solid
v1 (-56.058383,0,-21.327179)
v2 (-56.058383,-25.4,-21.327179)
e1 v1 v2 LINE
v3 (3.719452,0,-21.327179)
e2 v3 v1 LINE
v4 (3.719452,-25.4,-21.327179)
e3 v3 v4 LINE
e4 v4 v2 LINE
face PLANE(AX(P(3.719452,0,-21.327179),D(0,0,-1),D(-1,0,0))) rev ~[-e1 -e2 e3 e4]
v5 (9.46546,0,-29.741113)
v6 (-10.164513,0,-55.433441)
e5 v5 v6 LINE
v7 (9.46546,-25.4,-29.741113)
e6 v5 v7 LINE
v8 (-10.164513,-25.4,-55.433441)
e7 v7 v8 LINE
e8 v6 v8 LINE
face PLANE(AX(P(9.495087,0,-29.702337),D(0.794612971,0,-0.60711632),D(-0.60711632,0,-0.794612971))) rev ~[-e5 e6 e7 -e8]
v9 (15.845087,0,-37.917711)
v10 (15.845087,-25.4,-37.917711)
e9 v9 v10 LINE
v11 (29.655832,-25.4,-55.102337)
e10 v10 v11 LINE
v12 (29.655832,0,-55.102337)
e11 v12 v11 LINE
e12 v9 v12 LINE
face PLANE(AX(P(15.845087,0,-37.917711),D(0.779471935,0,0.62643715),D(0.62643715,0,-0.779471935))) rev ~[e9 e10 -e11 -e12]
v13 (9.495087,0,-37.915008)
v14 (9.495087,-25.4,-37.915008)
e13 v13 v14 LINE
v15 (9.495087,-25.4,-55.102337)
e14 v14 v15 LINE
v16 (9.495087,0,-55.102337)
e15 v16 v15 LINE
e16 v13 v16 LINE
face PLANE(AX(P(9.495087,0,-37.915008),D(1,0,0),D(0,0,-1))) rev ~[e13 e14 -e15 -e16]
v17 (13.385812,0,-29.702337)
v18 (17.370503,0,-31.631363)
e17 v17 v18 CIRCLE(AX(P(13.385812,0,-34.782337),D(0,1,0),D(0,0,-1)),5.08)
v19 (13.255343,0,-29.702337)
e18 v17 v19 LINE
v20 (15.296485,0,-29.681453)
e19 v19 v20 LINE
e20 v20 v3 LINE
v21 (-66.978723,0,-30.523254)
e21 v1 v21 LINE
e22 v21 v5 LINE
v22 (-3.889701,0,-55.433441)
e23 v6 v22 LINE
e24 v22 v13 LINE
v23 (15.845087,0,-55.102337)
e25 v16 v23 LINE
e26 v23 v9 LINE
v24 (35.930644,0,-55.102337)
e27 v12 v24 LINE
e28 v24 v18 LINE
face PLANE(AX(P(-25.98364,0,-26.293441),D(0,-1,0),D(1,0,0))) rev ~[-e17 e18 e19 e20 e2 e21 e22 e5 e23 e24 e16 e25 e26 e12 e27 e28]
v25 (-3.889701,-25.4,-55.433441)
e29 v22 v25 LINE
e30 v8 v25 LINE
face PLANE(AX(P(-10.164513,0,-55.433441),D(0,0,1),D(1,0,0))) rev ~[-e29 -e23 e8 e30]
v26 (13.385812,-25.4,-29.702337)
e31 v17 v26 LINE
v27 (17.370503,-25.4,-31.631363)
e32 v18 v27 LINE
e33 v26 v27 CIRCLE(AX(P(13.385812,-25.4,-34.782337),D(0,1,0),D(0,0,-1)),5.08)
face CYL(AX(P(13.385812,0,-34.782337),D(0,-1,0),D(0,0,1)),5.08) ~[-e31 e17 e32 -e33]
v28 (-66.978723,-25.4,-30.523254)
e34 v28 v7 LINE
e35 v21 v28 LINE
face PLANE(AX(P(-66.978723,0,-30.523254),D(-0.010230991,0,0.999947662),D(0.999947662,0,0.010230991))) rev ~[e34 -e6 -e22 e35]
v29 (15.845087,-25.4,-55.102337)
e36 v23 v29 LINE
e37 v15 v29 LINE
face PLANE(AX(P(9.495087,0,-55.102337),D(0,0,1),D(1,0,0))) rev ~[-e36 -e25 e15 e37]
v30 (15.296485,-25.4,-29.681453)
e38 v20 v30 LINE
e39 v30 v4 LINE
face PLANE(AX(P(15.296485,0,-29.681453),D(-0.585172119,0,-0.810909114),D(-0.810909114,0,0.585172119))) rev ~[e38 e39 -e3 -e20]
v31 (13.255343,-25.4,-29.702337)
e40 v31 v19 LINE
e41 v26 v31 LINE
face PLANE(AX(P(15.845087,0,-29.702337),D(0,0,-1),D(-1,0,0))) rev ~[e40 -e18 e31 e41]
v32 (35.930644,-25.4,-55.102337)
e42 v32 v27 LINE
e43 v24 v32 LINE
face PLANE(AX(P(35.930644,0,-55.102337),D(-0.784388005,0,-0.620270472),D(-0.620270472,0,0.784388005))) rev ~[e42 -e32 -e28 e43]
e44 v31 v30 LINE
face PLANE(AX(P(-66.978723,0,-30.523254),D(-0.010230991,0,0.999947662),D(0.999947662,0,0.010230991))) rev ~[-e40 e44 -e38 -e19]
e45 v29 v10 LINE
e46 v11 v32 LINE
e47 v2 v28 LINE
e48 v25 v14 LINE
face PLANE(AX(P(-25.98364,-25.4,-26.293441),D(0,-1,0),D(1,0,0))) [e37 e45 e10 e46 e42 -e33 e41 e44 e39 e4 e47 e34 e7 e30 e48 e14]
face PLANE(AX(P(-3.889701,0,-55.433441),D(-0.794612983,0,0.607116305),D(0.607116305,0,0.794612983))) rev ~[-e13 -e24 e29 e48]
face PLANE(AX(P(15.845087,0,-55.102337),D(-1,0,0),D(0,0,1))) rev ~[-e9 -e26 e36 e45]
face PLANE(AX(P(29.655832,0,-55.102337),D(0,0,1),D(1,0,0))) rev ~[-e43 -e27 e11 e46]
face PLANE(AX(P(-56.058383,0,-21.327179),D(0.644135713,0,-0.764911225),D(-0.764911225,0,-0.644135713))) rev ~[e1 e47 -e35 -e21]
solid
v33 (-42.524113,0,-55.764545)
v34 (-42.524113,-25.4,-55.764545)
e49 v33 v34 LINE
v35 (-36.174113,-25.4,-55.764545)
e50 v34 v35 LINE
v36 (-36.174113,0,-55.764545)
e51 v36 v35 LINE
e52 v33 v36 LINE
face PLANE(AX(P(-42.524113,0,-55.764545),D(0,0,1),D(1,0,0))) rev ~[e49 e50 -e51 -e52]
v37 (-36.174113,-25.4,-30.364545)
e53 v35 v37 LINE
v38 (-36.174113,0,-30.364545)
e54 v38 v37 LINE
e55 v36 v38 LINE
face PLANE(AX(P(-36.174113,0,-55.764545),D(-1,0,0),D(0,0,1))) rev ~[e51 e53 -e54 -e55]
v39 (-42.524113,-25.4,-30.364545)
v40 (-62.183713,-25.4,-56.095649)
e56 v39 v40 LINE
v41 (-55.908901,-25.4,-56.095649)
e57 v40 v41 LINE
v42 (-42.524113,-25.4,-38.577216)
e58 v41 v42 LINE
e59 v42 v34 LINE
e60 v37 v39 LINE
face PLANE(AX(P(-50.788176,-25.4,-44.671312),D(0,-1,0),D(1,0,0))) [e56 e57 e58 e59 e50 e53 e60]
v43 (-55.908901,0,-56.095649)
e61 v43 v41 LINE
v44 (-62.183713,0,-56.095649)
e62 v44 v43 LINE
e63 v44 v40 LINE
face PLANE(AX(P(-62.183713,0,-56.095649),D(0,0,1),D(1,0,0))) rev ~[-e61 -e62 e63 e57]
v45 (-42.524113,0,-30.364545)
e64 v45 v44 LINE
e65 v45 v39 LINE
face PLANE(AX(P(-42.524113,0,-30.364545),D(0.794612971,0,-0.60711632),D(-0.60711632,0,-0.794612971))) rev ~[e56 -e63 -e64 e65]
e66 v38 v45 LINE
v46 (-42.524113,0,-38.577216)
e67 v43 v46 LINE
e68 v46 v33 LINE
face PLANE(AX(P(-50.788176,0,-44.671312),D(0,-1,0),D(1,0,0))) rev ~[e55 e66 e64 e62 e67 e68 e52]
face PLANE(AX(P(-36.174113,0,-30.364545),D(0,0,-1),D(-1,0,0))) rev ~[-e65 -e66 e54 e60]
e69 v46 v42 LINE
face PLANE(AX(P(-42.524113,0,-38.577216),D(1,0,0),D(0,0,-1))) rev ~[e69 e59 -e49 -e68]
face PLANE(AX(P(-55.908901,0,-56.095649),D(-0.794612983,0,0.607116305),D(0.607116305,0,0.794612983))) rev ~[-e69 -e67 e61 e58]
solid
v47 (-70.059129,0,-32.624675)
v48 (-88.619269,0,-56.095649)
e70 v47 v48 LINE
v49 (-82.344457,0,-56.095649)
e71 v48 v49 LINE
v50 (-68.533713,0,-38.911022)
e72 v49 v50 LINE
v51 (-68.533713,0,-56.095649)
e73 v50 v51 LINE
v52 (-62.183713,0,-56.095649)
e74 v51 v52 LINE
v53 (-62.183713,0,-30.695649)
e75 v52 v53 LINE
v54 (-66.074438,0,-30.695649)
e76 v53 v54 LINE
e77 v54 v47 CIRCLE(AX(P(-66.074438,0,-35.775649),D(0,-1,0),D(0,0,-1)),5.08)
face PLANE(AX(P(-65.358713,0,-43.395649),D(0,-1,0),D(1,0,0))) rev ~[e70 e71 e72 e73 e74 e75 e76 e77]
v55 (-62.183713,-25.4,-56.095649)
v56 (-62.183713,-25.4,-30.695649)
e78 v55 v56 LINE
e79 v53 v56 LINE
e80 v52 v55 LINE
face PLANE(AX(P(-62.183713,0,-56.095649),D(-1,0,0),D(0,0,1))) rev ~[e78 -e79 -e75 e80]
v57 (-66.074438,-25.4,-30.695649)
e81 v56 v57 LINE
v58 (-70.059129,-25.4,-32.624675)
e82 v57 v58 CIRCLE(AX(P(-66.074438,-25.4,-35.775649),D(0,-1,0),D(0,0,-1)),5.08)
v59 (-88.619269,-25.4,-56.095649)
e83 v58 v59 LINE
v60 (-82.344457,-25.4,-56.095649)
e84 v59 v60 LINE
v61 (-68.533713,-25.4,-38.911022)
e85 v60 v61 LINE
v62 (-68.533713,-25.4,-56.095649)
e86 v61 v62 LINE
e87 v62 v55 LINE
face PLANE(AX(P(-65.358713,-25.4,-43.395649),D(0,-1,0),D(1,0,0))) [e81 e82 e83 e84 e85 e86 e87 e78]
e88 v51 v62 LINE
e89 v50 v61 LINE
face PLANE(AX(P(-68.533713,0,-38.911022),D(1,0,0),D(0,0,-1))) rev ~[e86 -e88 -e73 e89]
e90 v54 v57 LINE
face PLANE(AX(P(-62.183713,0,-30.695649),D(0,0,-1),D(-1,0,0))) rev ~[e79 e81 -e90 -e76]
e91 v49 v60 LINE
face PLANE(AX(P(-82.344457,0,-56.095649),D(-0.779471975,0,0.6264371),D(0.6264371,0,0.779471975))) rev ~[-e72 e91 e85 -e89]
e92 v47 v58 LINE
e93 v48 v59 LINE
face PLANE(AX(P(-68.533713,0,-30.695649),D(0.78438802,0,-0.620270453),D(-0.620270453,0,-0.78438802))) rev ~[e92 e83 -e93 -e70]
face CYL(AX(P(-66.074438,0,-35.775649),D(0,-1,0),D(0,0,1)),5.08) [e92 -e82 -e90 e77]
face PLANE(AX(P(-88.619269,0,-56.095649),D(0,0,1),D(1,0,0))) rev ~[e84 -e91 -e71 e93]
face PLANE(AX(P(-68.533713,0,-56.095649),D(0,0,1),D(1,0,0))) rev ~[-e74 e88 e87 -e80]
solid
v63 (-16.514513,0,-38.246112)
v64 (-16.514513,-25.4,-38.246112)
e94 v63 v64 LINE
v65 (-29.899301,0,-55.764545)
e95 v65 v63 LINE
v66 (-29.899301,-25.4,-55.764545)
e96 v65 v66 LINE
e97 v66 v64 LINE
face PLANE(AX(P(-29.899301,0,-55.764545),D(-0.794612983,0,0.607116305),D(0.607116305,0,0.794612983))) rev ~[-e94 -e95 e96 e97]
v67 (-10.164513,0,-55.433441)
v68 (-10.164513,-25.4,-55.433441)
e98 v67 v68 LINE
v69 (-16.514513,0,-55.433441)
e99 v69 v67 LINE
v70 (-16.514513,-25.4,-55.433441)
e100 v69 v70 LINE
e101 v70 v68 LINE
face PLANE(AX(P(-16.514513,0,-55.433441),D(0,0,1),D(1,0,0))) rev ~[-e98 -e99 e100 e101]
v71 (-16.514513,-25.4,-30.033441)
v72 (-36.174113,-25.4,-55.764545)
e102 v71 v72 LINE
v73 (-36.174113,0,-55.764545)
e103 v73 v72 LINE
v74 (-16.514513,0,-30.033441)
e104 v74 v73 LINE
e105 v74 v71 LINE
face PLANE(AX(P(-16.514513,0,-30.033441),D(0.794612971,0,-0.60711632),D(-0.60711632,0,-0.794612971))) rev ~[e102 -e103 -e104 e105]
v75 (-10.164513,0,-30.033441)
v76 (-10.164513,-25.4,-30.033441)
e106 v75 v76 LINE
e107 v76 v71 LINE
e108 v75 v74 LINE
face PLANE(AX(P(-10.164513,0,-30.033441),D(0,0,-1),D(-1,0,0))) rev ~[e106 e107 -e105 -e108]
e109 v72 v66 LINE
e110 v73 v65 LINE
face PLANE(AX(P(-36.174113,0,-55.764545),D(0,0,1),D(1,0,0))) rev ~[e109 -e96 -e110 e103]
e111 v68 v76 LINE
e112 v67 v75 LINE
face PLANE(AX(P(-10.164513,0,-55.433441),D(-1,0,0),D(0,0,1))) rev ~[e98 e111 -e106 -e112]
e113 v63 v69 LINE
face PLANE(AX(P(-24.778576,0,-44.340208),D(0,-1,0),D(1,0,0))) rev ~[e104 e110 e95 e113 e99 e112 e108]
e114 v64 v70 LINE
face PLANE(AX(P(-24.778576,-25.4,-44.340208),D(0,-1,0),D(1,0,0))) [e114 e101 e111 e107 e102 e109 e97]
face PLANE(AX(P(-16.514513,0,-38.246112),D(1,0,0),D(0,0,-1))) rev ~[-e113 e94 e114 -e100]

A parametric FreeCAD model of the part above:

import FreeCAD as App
import Part
import Sketcher

V = App.Vector
Q = App.Units.Quantity


def edges_at(feature, points):
    """Names of the edges that pass closest to the given points."""
    edges = feature.Shape.Edges
    near = lambda p: min(range(len(edges)), key=lambda i: edges[i].distToShape(Part.Vertex(*p))[0])
    return sorted({f"Edge{near(p) + 1}" for p in points})

doc = App.newDocument("Part")
body = doc.addObject("PartDesign::Body", "Body")
body.AllowCompound = True

sketch1 = body.newObject("Sketcher::SketchObject", "Sketch")
sketch1.AttachmentSupport = (doc.getObject("XZ_Plane"), [""])
sketch1.MapMode = "FlatFace"
sketch1.addGeometry([
    Part.LineSegment(V(9.495087, -29.702337, 0), V(-10.164513, -55.433441, 0)),
    Part.LineSegment(V(-10.164513, -55.433441, 0), V(-3.889701, -55.433441, 0)),
    Part.LineSegment(V(-3.889701, -55.433441, 0), V(9.495087, -37.915008, 0)),
    Part.LineSegment(V(9.495087, -37.915008, 0), V(9.495087, -55.102337, 0)),
    Part.LineSegment(V(9.495087, -55.102337, 0), V(15.845087, -55.102337, 0)),
    Part.LineSegment(V(15.845087, -55.102337, 0), V(15.845087, -37.917711, 0)),
    Part.LineSegment(V(15.845087, -37.917711, 0), V(29.655832, -55.102337, 0)),
    Part.LineSegment(V(29.655832, -55.102337, 0), V(35.930644, -55.102337, 0)),
    Part.LineSegment(V(35.930644, -55.102337, 0), V(15.845087, -29.702337, 0)),
    Part.LineSegment(V(15.845087, -29.702337, 0), V(9.495087, -29.702337, 0)),
    Part.LineSegment(V(-68.533713, -56.095649, 0), V(-62.183713, -56.095649, 0)),
    Part.LineSegment(V(-62.183713, -56.095649, 0), V(-62.183713, -30.695649, 0)),
    Part.LineSegment(V(-62.183713, -30.695649, 0), V(-68.533713, -30.695649, 0)),
    Part.LineSegment(V(-68.533713, -30.695649, 0), V(-88.619269, -56.095649, 0)),
    Part.LineSegment(V(-88.619269, -56.095649, 0), V(-82.344457, -56.095649, 0)),
    Part.LineSegment(V(-82.344457, -56.095649, 0), V(-68.533713, -38.911022, 0)),
    Part.LineSegment(V(-68.533713, -38.911022, 0), V(-68.533713, -56.095649, 0)),
    Part.LineSegment(V(-16.514513, -30.033441, 0), V(-36.174113, -55.764545, 0)),
    Part.LineSegment(V(-36.174113, -55.764545, 0), V(-29.899301, -55.764545, 0)),
    Part.LineSegment(V(-29.899301, -55.764545, 0), V(-16.514513, -38.246112, 0)),
    Part.LineSegment(V(-16.514513, -38.246112, 0), V(-16.514513, -55.433441, 0)),
    Part.LineSegment(V(-16.514513, -55.433441, 0), V(-10.164513, -55.433441, 0)),
    Part.LineSegment(V(-10.164513, -55.433441, 0), V(-10.164513, -30.033441, 0)),
    Part.LineSegment(V(-10.164513, -30.033441, 0), V(-16.514513, -30.033441, 0)),
    Part.LineSegment(V(-42.524113, -30.364545, 0), V(-62.183713, -56.095649, 0)),
    Part.LineSegment(V(-62.183713, -56.095649, 0), V(-55.908901, -56.095649, 0)),
    Part.LineSegment(V(-55.908901, -56.095649, 0), V(-42.524113, -38.577216, 0)),
    Part.LineSegment(V(-42.524113, -38.577216, 0), V(-42.524113, -55.764545, 0)),
    Part.LineSegment(V(-42.524113, -55.764545, 0), V(-36.174113, -55.764545, 0)),
    Part.LineSegment(V(-36.174113, -55.764545, 0), V(-36.174113, -30.364545, 0)),
    Part.LineSegment(V(-36.174113, -30.364545, 0), V(-42.524113, -30.364545, 0)),
], False)
sketch1.addConstraint([
    Sketcher.Constraint("Coincident", 0, 2, 1, 1),
    Sketcher.Constraint("Coincident", 1, 2, 2, 1),
    Sketcher.Constraint("Coincident", 2, 2, 3, 1),
    Sketcher.Constraint("Coincident", 3, 2, 4, 1),
    Sketcher.Constraint("Coincident", 4, 2, 5, 1),
    Sketcher.Constraint("Coincident", 5, 2, 6, 1),
    Sketcher.Constraint("Coincident", 6, 2, 7, 1),
    Sketcher.Constraint("Coincident", 7, 2, 8, 1),
    Sketcher.Constraint("Coincident", 8, 2, 9, 1),
    Sketcher.Constraint("Coincident", 9, 2, 0, 1),
    Sketcher.Constraint("Coincident", 10, 2, 11, 1),
    Sketcher.Constraint("Coincident", 11, 2, 12, 1),
    Sketcher.Constraint("Coincident", 12, 2, 13, 1),
    Sketcher.Constraint("Coincident", 13, 2, 14, 1),
    Sketcher.Constraint("Coincident", 14, 2, 15, 1),
    Sketcher.Constraint("Coincident", 15, 2, 16, 1),
    Sketcher.Constraint("Coincident", 16, 2, 10, 1),
    Sketcher.Constraint("Coincident", 17, 2, 18, 1),
    Sketcher.Constraint("Coincident", 18, 2, 19, 1),
    Sketcher.Constraint("Coincident", 19, 2, 20, 1),
    Sketcher.Constraint("Coincident", 20, 2, 21, 1),
    Sketcher.Constraint("Coincident", 21, 2, 22, 1),
    Sketcher.Constraint("Coincident", 22, 2, 23, 1),
    Sketcher.Constraint("Coincident", 23, 2, 17, 1),
    Sketcher.Constraint("Coincident", 24, 2, 25, 1),
    Sketcher.Constraint("Coincident", 25, 2, 26, 1),
    Sketcher.Constraint("Coincident", 26, 2, 27, 1),
    Sketcher.Constraint("Coincident", 27, 2, 28, 1),
    Sketcher.Constraint("Coincident", 28, 2, 29, 1),
    Sketcher.Constraint("Coincident", 29, 2, 30, 1),
    Sketcher.Constraint("Coincident", 30, 2, 24, 1),
    Sketcher.Constraint("Horizontal", 1),
    Sketcher.Constraint("Vertical", 3),
    Sketcher.Constraint("Horizontal", 4),
    Sketcher.Constraint("Vertical", 5),
    Sketcher.Constraint("Horizontal", 7),
    Sketcher.Constraint("Horizontal", 9),
    Sketcher.Constraint("Horizontal", 10),
    Sketcher.Constraint("Vertical", 11),
    Sketcher.Constraint("Horizontal", 12),
    Sketcher.Constraint("Horizontal", 14),
    Sketcher.Constraint("Vertical", 16),
    Sketcher.Constraint("Horizontal", 18),
    Sketcher.Constraint("Vertical", 20),
    Sketcher.Constraint("Horizontal", 21),
    Sketcher.Constraint("Vertical", 22),
    Sketcher.Constraint("Horizontal", 23),
    Sketcher.Constraint("Horizontal", 25),
    Sketcher.Constraint("Vertical", 27),
    Sketcher.Constraint("Horizontal", 28),
    Sketcher.Constraint("Vertical", 29),
    Sketcher.Constraint("Horizontal", 30),
    Sketcher.Constraint("Coincident", 21, 2, 0, 2),
    Sketcher.Constraint("Coincident", 24, 2, 10, 2),
    Sketcher.Constraint("Coincident", 28, 2, 17, 2),
    Sketcher.Constraint("Parallel", 0, 2),
    Sketcher.Constraint("Parallel", 2, 17),
    Sketcher.Constraint("Parallel", 17, 19),
    Sketcher.Constraint("Parallel", 19, 24),
    Sketcher.Constraint("Parallel", 24, 26),
    Sketcher.Constraint("Horizontal", 4, 2, 6, 2),
    Sketcher.Constraint("Horizontal", 10, 2, 13, 2),
    Sketcher.Constraint("Vertical", 5, 2, 8, 2),
    Sketcher.Constraint("Vertical", 3, 2, 9, 2),
    Sketcher.Constraint("Vertical", 12, 2, 15, 2),
    Sketcher.Constraint("Vertical", 20, 2, 23, 2),
    Sketcher.Constraint("Vertical", 27, 2, 30, 2),
    Sketcher.Constraint("Equal", 1, 7),
    Sketcher.Constraint("Equal", 9, 10),
    Sketcher.Constraint("Equal", 7, 14),
    Sketcher.Constraint("Equal", 14, 18),
    Sketcher.Constraint("Equal", 12, 21),
    Sketcher.Constraint("Equal", 18, 25),
    Sketcher.Constraint("Equal", 23, 28),
    Sketcher.Constraint("Equal", 5, 16),
    Sketcher.Constraint("Equal", 3, 20),
    Sketcher.Constraint("Equal", 11, 22),
    Sketcher.Constraint("Equal", 20, 27),
    Sketcher.Constraint("Equal", 2, 6),
    Sketcher.Constraint("Equal", 0, 8),
    Sketcher.Constraint("Equal", 8, 13),
    Sketcher.Constraint("Equal", 13, 17),
    Sketcher.Constraint("Equal", 17, 24),
    Sketcher.Constraint("DistanceY", 11, 1, 11, 2, Q("1 in")),
    Sketcher.Constraint("DistanceX", 4, 1, 4, 2, Q("0.25 in")),
    Sketcher.Constraint("DistanceX", 0, 2, 2, 2, Q("0.774 in")),
    Sketcher.Constraint("DistanceX", 1, 1, 1, 2, Q("6.274812 mm")),
    Sketcher.Constraint("DistanceY", 3, 2, 3, 1, Q("17.187329 mm")),
    Sketcher.Constraint("DistanceX", 1, 2, -1, 1, Q("3.889701 mm")),
    Sketcher.Constraint("DistanceY", 0, 2, -1, 1, Q("55.433441 mm")),
])
pad1 = body.newObject("PartDesign::Pad", "Pad")
pad1.Profile = sketch1
pad1.Length = Q("1 in")
doc.recompute()

fillet = body.newObject("PartDesign::Fillet", "Fillet")
fillet.Base = (pad1, edges_at(pad1, [(-68.534, -12.7, -30.696)]))
fillet.Radius = Q("0.2 in")
doc.recompute()

fillet2 = body.newObject("PartDesign::Fillet", "Fillet001")
fillet2.Base = (fillet, edges_at(fillet, [(15.845, -12.7, -29.702)]))
fillet2.Radius = Q("0.2 in")

sketch2 = body.newObject("Sketcher::SketchObject", "Sketch001")
sketch2.AttachmentSupport = (doc.getObject("XZ_Plane"), [""])
sketch2.MapMode = "FlatFace"
sketch2.addGeometry([
    Part.LineSegment(V(-56.058383, -21.327179, 0), V(-66.978723, -30.523254, 0)),
    Part.LineSegment(V(-66.978723, -30.523254, 0), V(15.296485, -29.681453, 0)),
    Part.LineSegment(V(15.296485, -29.681453, 0), V(3.719452, -21.327179, 0)),
    Part.LineSegment(V(3.719452, -21.327179, 0), V(-56.058383, -21.327179, 0)),
], False)
sketch2.addConstraint([
    Sketcher.Constraint("Coincident", 0, 2, 1, 1),
    Sketcher.Constraint("Coincident", 1, 2, 2, 1),
    Sketcher.Constraint("Coincident", 2, 2, 3, 1),
    Sketcher.Constraint("Coincident", 3, 2, 0, 1),
    Sketcher.Constraint("Horizontal", 3),
    Sketcher.Constraint("Equal", 0, 2),
    Sketcher.Constraint("DistanceY", 0, 2, 1, 2, Q("0.841801 mm")),
    Sketcher.Constraint("Distance", 0, Q("14.276611 mm")),
    Sketcher.Constraint("DistanceX", 3, 2, 3, 1, Q("59.777835 mm")),
    Sketcher.Constraint("DistanceX", -1, 1, 2, 2, Q("3.719452 mm")),
    Sketcher.Constraint("DistanceY", 2, 2, -1, 1, Q("21.327179 mm")),
    Sketcher.Constraint("DistanceX", 0, 2, 1, 2, Q("82.275208 mm")),
])
pad2 = body.newObject("PartDesign::Pad", "Pad001")
pad2.Profile = sketch2
pad2.Length = Q("1 in")

doc.recompute()
